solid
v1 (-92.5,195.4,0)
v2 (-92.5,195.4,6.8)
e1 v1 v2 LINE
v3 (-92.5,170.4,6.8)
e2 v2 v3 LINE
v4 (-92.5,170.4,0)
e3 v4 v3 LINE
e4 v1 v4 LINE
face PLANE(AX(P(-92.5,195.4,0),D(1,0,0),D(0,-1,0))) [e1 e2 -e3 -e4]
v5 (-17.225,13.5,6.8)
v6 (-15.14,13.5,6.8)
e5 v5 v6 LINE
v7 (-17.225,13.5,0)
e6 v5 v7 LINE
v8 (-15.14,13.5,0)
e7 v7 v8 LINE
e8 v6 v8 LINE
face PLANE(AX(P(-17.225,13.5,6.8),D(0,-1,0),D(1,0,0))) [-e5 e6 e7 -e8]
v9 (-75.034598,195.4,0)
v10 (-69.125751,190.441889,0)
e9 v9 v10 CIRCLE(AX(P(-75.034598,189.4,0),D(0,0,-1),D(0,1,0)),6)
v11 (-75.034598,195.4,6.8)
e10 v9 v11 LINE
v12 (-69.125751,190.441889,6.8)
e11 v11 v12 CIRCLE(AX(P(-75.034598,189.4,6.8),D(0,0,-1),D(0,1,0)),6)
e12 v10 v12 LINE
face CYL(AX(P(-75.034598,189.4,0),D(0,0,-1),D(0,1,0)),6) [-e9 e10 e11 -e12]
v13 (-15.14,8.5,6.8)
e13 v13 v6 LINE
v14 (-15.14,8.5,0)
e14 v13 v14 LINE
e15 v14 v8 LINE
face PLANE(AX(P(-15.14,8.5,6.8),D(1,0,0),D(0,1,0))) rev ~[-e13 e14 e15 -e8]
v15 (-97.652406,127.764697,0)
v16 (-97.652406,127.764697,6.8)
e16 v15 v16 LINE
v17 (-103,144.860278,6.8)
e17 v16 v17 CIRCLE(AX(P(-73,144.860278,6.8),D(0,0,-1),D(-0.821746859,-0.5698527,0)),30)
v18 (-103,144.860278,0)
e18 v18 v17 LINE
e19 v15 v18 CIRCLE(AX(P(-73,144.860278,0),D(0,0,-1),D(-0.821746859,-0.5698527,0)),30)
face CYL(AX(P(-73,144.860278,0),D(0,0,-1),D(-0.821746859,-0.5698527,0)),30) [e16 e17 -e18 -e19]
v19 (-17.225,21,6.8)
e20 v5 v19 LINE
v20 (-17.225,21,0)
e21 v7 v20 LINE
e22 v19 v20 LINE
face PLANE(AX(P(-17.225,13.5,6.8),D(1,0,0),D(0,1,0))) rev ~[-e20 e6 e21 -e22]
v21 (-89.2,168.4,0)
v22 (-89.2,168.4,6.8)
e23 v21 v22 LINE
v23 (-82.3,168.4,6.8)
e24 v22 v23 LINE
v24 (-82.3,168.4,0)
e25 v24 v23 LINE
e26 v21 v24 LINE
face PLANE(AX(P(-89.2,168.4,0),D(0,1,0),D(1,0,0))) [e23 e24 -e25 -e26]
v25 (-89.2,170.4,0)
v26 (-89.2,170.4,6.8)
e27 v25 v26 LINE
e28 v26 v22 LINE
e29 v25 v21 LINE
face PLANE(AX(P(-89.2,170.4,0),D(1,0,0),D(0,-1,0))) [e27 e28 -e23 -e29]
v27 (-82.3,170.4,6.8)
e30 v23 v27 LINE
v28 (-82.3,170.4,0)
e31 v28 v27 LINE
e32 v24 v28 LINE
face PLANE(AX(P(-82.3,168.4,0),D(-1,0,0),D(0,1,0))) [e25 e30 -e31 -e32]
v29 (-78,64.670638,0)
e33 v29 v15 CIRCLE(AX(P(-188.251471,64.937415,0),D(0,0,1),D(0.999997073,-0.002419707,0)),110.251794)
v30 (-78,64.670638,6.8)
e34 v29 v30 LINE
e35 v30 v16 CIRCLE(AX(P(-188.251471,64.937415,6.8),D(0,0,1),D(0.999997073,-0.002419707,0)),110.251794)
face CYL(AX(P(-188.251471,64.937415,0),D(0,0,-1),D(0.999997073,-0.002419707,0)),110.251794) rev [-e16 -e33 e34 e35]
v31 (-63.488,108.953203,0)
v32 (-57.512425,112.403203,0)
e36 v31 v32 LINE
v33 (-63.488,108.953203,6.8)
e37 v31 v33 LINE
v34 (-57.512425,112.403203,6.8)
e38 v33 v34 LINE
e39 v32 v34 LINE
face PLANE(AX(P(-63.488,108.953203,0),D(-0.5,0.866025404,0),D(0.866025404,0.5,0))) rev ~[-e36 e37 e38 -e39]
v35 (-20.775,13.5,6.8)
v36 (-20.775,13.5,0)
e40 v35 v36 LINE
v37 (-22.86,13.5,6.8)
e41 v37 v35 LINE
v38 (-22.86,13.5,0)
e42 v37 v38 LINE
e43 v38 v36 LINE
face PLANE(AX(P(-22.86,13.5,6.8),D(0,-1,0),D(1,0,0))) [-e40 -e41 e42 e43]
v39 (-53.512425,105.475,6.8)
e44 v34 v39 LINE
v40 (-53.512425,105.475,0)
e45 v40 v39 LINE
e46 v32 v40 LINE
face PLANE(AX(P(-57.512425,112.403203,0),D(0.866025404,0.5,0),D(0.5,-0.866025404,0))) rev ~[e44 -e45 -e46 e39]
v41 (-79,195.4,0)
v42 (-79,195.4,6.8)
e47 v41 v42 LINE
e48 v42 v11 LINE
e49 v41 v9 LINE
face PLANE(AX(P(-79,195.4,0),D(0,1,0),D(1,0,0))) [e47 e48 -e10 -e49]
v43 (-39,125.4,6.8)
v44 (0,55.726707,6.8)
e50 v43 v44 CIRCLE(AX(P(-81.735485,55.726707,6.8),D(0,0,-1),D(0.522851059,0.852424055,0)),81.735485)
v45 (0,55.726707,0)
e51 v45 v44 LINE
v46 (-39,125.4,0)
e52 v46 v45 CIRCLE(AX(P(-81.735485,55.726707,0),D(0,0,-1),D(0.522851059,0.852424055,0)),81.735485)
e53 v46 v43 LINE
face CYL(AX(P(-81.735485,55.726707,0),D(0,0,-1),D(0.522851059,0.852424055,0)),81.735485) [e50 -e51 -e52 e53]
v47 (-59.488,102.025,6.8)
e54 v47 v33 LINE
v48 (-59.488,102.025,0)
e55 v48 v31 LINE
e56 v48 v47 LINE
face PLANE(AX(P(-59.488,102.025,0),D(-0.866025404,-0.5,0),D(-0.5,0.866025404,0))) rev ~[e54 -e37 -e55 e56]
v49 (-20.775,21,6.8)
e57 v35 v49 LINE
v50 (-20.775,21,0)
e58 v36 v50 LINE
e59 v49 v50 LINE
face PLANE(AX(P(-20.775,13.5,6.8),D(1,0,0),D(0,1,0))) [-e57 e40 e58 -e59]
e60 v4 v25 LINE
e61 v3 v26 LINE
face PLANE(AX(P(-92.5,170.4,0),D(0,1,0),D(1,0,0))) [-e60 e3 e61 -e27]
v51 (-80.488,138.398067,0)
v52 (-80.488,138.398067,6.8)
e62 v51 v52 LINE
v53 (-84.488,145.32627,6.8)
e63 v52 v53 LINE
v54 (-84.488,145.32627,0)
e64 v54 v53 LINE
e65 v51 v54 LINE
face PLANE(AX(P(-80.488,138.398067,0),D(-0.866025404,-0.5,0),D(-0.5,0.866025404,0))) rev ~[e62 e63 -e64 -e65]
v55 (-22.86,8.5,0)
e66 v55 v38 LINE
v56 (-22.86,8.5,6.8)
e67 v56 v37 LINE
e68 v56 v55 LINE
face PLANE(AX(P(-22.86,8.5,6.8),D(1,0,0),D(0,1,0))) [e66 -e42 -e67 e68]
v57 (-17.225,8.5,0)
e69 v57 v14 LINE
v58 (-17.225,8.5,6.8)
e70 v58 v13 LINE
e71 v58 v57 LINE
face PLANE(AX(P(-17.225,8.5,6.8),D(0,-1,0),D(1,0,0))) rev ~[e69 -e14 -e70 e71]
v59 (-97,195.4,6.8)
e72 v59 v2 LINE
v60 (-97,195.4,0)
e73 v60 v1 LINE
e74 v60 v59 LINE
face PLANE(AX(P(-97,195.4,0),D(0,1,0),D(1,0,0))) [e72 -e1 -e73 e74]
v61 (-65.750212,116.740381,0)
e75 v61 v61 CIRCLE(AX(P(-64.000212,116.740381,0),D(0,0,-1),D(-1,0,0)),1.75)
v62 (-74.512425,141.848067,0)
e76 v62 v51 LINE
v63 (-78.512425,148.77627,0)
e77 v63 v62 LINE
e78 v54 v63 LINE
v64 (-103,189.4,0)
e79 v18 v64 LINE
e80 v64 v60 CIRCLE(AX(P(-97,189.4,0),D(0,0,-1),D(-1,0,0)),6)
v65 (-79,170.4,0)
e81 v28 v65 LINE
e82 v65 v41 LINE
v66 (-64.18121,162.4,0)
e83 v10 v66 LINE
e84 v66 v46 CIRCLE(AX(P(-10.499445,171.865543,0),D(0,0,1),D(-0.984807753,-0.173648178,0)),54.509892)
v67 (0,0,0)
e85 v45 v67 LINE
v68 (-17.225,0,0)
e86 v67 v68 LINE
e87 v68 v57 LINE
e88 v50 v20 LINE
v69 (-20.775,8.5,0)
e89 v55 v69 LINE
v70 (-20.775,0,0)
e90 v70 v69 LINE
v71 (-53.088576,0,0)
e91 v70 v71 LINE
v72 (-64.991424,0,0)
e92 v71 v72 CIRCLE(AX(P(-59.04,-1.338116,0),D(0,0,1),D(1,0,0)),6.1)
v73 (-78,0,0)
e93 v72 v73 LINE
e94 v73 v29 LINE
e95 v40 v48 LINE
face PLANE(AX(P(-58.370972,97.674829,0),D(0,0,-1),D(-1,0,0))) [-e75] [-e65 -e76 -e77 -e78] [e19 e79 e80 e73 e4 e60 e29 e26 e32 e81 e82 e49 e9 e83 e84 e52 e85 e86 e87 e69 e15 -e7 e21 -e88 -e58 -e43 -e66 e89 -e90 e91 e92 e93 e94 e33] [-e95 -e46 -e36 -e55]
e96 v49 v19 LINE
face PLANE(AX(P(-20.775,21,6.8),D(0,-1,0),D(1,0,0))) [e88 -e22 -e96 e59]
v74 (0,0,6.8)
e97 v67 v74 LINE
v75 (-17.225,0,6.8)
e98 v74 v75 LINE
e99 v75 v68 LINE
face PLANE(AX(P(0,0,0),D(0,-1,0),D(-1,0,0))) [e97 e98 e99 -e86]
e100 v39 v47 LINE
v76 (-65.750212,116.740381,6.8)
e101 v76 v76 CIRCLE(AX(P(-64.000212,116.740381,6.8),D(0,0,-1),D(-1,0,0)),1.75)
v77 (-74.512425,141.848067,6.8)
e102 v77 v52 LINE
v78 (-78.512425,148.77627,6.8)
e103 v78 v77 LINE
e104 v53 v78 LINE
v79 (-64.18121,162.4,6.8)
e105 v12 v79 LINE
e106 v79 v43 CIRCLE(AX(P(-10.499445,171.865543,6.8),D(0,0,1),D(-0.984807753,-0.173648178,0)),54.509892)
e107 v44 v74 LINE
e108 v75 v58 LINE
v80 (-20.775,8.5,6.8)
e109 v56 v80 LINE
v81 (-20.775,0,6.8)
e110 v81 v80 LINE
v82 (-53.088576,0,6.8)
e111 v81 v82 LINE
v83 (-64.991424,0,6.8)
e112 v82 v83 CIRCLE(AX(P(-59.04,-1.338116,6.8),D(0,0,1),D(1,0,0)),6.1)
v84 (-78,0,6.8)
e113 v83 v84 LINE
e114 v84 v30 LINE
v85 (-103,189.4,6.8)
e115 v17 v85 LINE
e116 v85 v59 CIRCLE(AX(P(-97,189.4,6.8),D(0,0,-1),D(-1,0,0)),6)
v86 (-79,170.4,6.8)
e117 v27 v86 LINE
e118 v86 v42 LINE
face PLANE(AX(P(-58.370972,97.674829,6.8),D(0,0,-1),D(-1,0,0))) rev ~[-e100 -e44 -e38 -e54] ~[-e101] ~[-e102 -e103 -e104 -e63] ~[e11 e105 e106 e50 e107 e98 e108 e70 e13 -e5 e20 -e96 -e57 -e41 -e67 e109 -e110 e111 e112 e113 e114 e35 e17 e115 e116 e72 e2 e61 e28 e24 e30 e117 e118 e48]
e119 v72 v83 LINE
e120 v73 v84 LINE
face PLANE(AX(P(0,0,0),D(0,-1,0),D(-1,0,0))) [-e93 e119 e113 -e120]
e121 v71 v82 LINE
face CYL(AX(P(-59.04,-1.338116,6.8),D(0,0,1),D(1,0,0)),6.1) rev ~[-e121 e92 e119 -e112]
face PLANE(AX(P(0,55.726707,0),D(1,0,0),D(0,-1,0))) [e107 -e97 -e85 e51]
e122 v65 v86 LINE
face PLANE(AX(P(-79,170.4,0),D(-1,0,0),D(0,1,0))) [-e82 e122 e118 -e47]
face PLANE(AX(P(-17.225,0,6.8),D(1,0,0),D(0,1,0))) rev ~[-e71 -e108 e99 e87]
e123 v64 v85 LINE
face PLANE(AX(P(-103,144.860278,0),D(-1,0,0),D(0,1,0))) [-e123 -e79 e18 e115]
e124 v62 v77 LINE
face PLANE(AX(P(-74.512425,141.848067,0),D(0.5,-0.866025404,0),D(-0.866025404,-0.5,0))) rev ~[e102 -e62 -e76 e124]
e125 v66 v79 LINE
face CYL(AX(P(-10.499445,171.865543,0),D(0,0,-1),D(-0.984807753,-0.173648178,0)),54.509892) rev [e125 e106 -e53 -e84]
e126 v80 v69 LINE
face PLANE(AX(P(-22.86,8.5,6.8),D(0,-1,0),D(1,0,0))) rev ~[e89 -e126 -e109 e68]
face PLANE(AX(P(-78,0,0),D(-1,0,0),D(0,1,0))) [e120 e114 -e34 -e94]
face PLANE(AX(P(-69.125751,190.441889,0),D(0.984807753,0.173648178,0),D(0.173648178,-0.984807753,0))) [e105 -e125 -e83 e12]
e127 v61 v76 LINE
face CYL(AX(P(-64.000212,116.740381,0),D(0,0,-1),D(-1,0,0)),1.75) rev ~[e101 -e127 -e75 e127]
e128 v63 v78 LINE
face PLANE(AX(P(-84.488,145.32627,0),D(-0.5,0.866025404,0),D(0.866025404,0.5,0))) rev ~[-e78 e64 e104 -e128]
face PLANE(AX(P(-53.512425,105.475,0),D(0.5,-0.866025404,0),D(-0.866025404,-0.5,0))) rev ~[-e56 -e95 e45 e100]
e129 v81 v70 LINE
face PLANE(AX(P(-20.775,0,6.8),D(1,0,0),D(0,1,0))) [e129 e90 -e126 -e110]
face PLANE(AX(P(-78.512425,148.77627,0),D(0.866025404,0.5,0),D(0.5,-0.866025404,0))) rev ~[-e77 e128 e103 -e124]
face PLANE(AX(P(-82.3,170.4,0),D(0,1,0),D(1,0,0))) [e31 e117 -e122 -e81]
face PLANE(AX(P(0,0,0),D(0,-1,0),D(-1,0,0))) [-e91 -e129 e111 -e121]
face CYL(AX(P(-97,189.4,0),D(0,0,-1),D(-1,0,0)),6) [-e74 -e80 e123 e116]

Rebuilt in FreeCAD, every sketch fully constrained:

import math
import FreeCAD as App
import Part
import Sketcher
from FreeCAD import Vector
Q = App.Units.Quantity


def add_polygon(sketch, points):
    """Adds a closed chain of lines whose ends are joined by coincident constraints."""
    first, n = sketch.GeometryCount, len(points)
    for a, b in zip(points, points[1:] + points[:1]):
        sketch.addGeometry(Part.LineSegment(App.Vector(*a, 0), App.Vector(*b, 0)), False)
    for i in range(n):
        sketch.addConstraint(Sketcher.Constraint("Coincident", first + i, 2, first + (i + 1) % n, 1))

doc = App.newDocument("Part")
body = doc.addObject("PartDesign::Body", "Body")

sketch1 = body.newObject("Sketcher::SketchObject", "Sketch")
sketch1.AttachmentSupport = (doc.getObject("XY_Plane"), [""])
sketch1.MapMode = "FlatFace"
sketch1.addGeometry([
    Part.LineSegment(Vector(-92.5, 195.4, 0), Vector(-97, 195.4, 0)),
    Part.ArcOfCircle(Part.Circle(Vector(-97, 189.4, 0), Vector(0, 0, 1), 6), math.radians(90), math.radians(180)),
    Part.LineSegment(Vector(-103, 189.4, 0), Vector(-103, 144.9, 0)),
    Part.ArcOfCircle(Part.Circle(Vector(-73, 144.9, 0), Vector(0, 0, 1), 30), math.radians(180), math.radians(215)),
    Part.ArcOfCircle(Part.Circle(Vector(-188.3, 64.9, 0), Vector(0, 0, 1), 110.3), math.radians(0), math.radians(35)),
    Part.LineSegment(Vector(-78, 64.7, 0), Vector(-78, 0, 0)),
    Part.LineSegment(Vector(-78, 0, 0), Vector(0, 0, 0)),
    Part.LineSegment(Vector(0, 0, 0), Vector(0, 55.7, 0)),
    Part.ArcOfCircle(Part.Circle(Vector(-81.7, 55.7, 0), Vector(0, 0, 1), 81.7), math.radians(0), math.radians(58)),
    Part.ArcOfCircle(Part.Circle(Vector(-10.5, 171.9, 0), Vector(0, 0, 1), 54.5), math.radians(-170), math.radians(-122)),
    Part.LineSegment(Vector(-64.2, 162.4, 0), Vector(-69.1, 190.4, 0)),
    Part.ArcOfCircle(Part.Circle(Vector(-75, 189.4, 0), Vector(0, 0, 1), 6), math.radians(10), math.radians(90)),
    Part.LineSegment(Vector(-75, 195.4, 0), Vector(-79, 195.4, 0)),
    Part.LineSegment(Vector(-79, 195.4, 0), Vector(-79, 170.4, 0)),
    Part.LineSegment(Vector(-79, 170.4, 0), Vector(-82.3, 170.4, 0)),
    Part.LineSegment(Vector(-82.3, 170.4, 0), Vector(-82.3, 168.4, 0)),
    Part.LineSegment(Vector(-82.3, 168.4, 0), Vector(-89.2, 168.4, 0)),
    Part.LineSegment(Vector(-89.2, 168.4, 0), Vector(-89.2, 170.4, 0)),
    Part.LineSegment(Vector(-89.2, 170.4, 0), Vector(-92.5, 170.4, 0)),
    Part.LineSegment(Vector(-92.5, 170.4, 0), Vector(-92.5, 195.4, 0)),
], False)
sketch1.addConstraint([
    Sketcher.Constraint("Tangent", 0, 2, 1, 1),
    Sketcher.Constraint("Tangent", 1, 2, 2, 1),
    Sketcher.Constraint("Tangent", 2, 2, 3, 1),
    Sketcher.Constraint("Tangent", 3, 2, 4, 2),
    Sketcher.Constraint("Coincident", 4, 1, 5, 1),
    Sketcher.Constraint("Coincident", 5, 2, 6, 1),
    Sketcher.Constraint("Coincident", 6, 2, 7, 1),
    Sketcher.Constraint("Tangent", 7, 2, 8, 1),
    Sketcher.Constraint("Tangent", 8, 2, 9, 2),
    Sketcher.Constraint("Tangent", 9, 1, 10, 1),
    Sketcher.Constraint("Tangent", 10, 2, 11, 1),
    Sketcher.Constraint("Tangent", 11, 2, 12, 1),
    Sketcher.Constraint("Coincident", 12, 2, 13, 1),
    Sketcher.Constraint("Coincident", 13, 2, 14, 1),
    Sketcher.Constraint("Coincident", 14, 2, 15, 1),
    Sketcher.Constraint("Coincident", 15, 2, 16, 1),
    Sketcher.Constraint("Coincident", 16, 2, 17, 1),
    Sketcher.Constraint("Coincident", 17, 2, 18, 1),
    Sketcher.Constraint("Coincident", 18, 2, 19, 1),
    Sketcher.Constraint("Coincident", 19, 2, 0, 1),
    Sketcher.Constraint("Horizontal", 0),
    Sketcher.Constraint("Vertical", 2),
    Sketcher.Constraint("Vertical", 5),
    Sketcher.Constraint("Horizontal", 6),
    Sketcher.Constraint("Vertical", 7),
    Sketcher.Constraint("Horizontal", 12),
    Sketcher.Constraint("Vertical", 13),
    Sketcher.Constraint("Horizontal", 14),
    Sketcher.Constraint("Vertical", 15),
    Sketcher.Constraint("Horizontal", 16),
    Sketcher.Constraint("Vertical", 17),
    Sketcher.Constraint("Horizontal", 18),
    Sketcher.Constraint("Vertical", 19),
    Sketcher.Constraint("Coincident", 6, 2, -1, 1),
    Sketcher.Constraint("Equal", 1, 11),
    Sketcher.Constraint("Horizontal", 1, 3, 11, 3),
    Sketcher.Constraint("Horizontal", 14, 2, 17, 2),
    Sketcher.Constraint("Equal", 14, 18),
    Sketcher.Constraint("Radius", 1, 6.0),
    Sketcher.Constraint("Radius", 3, 30.0),
    Sketcher.Constraint("DistanceX", 6, 1, 6, 2, 78.0),
    Sketcher.Constraint("DistanceY", 13, 2, 13, 1, 25.0),
    Sketcher.Constraint("DistanceY", 15, 2, 15, 1, 2.0),
    Sketcher.Constraint("Angle", 10, Q("100 deg")),
    Sketcher.Constraint("DistanceX", 0, 2, 0, 1, 4.5),
    Sketcher.Constraint("DistanceX", 14, 2, 14, 1, 3.3),
    Sketcher.Constraint("DistanceX", 16, 2, 16, 1, 6.9),
    Sketcher.Constraint("DistanceX", 1, 3, -1, 1, 97.0),
    Sketcher.Constraint("DistanceX", 8, 2, -1, 1, 39.0),
    Sketcher.Constraint("DistanceY", 9, 1, 11, 3, 27.0),
    Sketcher.Constraint("DistanceY", 8, 2, 9, 1, 37.0),
    Sketcher.Constraint("DistanceY", -1, 1, 1, 3, 189.4),
    Sketcher.Constraint("Radius", 4, 110.251794),
    Sketcher.Constraint("Radius", 8, 81.735485),
    Sketcher.Constraint("DistanceY", 2, 2, 2, 1, 44.539722),
    Sketcher.Constraint("DistanceY", 5, 2, 5, 1, 64.670638),
])
pad1 = body.newObject("PartDesign::Pad", "Pad")
pad1.Profile = sketch1
pad1.Length = 6.8

sketch2 = body.newObject("Sketcher::SketchObject", "Sketch001")
sketch2.AttachmentSupport = (doc.getObject("XY_Plane"), [""])
sketch2.MapMode = "FlatFace"
sketch2.AttachmentOffset = App.Placement(Vector(0, 0, 6.8), App.Rotation())
add_polygon(sketch2, [(-20.8, 21), (-20.8, 13.5), (-22.9, 13.5), (-22.9, 8.5), (-20.8, 8.5), (-20.8, 0), (-17.2, 0), (-17.2, 8.5), (-15.1, 8.5), (-15.1, 13.5), (-17.2, 13.5), (-17.2, 21)])
sketch2.addConstraint([
    Sketcher.Constraint("Vertical", 0),
    Sketcher.Constraint("Horizontal", 1),
    Sketcher.Constraint("Vertical", 2),
    Sketcher.Constraint("Horizontal", 3),
    Sketcher.Constraint("Vertical", 4),
    Sketcher.Constraint("Horizontal", 5),
    Sketcher.Constraint("Vertical", 6),
    Sketcher.Constraint("Horizontal", 7),
    Sketcher.Constraint("Vertical", 8),
    Sketcher.Constraint("Horizontal", 9),
    Sketcher.Constraint("Vertical", 10),
    Sketcher.Constraint("Horizontal", 11),
    Sketcher.Constraint("PointOnObject", 4, 2, -1),
    Sketcher.Constraint("Horizontal", 3, 2, 6, 2),
    Sketcher.Constraint("Horizontal", 1, 2, 8, 2),
    Sketcher.Constraint("Vertical", 0, 2, 3, 2),
    Sketcher.Constraint("Vertical", 6, 2, 9, 2),
    Sketcher.Constraint("Equal", 3, 7),
    Sketcher.Constraint("DistanceY", 2, 2, 2, 1, 5.0),
    Sketcher.Constraint("DistanceY", 0, 2, 0, 1, 7.5),
    Sketcher.Constraint("DistanceY", 4, 2, 4, 1, 8.5),
    Sketcher.Constraint("DistanceX", 5, 1, 5, 2, 3.55),
    Sketcher.Constraint("DistanceX", 1, 2, 1, 1, 2.085),
    Sketcher.Constraint("DistanceX", 1, 2, -1, 1, 22.86),
])
pocket1 = body.newObject("PartDesign::Pocket", "Pocket")
pocket1.Profile = sketch2
pocket1.Length = 6.8

sketch3 = body.newObject("Sketcher::SketchObject", "Sketch002")
sketch3.AttachmentSupport = (doc.getObject("XY_Plane"), [""])
sketch3.MapMode = "FlatFace"
sketch3.AttachmentOffset = App.Placement(Vector(0, 0, 6.8), App.Rotation())
sketch3.addGeometry(Part.Circle(Vector(-59, -1, 0), Vector(0, 0, 1), 6), False)
sketch3.addConstraint([
    Sketcher.Constraint("Diameter", 0, 12.2),
    Sketcher.Constraint("DistanceX", 0, 3, -1, 1, 59.04),
    Sketcher.Constraint("DistanceY", 0, 3, -1, 1, 1.338116),
])
pocket2 = body.newObject("PartDesign::Pocket", "Pocket001")
pocket2.Profile = sketch3
pocket2.Length = 6.8

sketch4 = body.newObject("Sketcher::SketchObject", "Sketch003")
sketch4.AttachmentSupport = (doc.getObject("XY_Plane"), [""])
sketch4.MapMode = "FlatFace"
sketch4.addGeometry(Part.Circle(Vector(-64, 116.7, 0), Vector(0, 0, 1), 1.8), False)
add_polygon(sketch4, [(-84.5, 145.3), (-78.5, 148.8), (-74.5, 141.8), (-80.5, 138.4)])
add_polygon(sketch4, [(-63.5, 109), (-57.5, 112.4), (-53.5, 105.5), (-59.5, 102)])
sketch4.addConstraint([
    Sketcher.Constraint("Perpendicular", 1, 2),
    Sketcher.Constraint("Perpendicular", 2, 3),
    Sketcher.Constraint("Perpendicular", 3, 4),
    Sketcher.Constraint("Perpendicular", 4, 5),
    Sketcher.Constraint("Perpendicular", 5, 6),
    Sketcher.Constraint("Perpendicular", 6, 7),
    Sketcher.Constraint("Perpendicular", 7, 8),
    Sketcher.Constraint("Equal", 3, 5),
    Sketcher.Constraint("Equal", 4, 6),
    Sketcher.Constraint("Diameter", 0, 3.5),
    Sketcher.Constraint("Angle", 1, Q("30 deg")),
    Sketcher.Constraint("Distance", 2, 8.0),
    Sketcher.Constraint("DistanceX", 2, 2, 5, 2, 17.0),
    Sketcher.Constraint("Distance", 1, 6.9),
    Sketcher.Constraint("DistanceX", 3, 2, -1, 1, 80.488),
    Sketcher.Constraint("DistanceY", -1, 1, 6, 2, 105.475),
    Sketcher.Constraint("DistanceY", -1, 1, 0, 3, 116.740381),
    Sketcher.Constraint("DistanceY", -1, 1, 1, 2, 148.77627),
    Sketcher.Constraint("DistanceX", 0, 3, -1, 1, 64.000212),
])
pocket3 = body.newObject("PartDesign::Pocket", "Pocket002")
pocket3.Profile = sketch4
pocket3.Length = 6.8
pocket3.Reversed = True

doc.recompute()
